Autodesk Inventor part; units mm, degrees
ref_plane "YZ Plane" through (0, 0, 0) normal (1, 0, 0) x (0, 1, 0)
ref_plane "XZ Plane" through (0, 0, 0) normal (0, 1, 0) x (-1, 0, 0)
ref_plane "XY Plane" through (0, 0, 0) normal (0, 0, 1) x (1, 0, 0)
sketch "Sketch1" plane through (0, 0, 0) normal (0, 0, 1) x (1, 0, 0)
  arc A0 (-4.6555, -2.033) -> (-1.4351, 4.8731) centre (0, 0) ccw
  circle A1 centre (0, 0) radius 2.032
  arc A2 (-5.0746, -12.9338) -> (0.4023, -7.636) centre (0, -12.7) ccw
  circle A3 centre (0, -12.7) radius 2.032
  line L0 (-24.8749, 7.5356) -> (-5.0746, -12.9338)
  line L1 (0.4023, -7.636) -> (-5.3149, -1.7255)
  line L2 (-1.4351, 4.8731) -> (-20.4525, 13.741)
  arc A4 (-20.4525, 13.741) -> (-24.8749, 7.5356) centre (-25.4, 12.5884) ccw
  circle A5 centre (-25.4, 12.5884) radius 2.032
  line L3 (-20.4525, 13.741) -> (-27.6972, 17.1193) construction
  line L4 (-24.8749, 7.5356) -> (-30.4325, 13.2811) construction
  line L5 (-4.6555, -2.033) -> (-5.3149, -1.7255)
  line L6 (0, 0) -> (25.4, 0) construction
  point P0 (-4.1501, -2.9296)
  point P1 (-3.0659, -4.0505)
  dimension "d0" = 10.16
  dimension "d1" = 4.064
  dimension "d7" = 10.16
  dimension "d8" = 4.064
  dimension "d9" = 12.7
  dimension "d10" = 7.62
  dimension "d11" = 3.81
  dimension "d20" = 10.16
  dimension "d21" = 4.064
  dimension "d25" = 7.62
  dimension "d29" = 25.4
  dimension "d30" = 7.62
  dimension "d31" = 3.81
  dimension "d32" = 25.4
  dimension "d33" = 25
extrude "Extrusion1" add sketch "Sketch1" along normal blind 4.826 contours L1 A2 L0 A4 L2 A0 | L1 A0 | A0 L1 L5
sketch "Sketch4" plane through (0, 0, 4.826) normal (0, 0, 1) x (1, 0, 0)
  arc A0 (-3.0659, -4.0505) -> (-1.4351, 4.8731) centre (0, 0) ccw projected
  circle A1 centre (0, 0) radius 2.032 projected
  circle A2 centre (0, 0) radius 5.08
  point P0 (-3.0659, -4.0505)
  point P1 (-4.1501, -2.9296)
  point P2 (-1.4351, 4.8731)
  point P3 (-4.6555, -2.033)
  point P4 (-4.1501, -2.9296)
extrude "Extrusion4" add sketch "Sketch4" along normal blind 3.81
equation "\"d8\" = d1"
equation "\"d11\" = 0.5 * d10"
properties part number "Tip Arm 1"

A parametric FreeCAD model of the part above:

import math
import FreeCAD as App
import Part
import Sketcher

V = App.Vector
Q = App.Units.Quantity

doc = App.newDocument("Part")
body = doc.addObject("PartDesign::Body", "Body")

sketch1 = doc.addObject("Sketcher::SketchObject", "Sketch")
body.addObject(sketch1)
sketch1.AttachmentSupport = (doc.XY_Plane, [""])
sketch1.MapMode = "FlatFace"
sketch1.addGeometry([
    Part.LineSegment(V(0.4, -7.6, 0), V(-3.1, -4.1, 0)),
    Part.ArcOfCircle(Part.Circle(V(0, 0, 0), V(0, 0, 1), 5.1), math.radians(-127), math.radians(106)),
    Part.LineSegment(V(-1.4, 4.9, 0), V(-20.5, 13.7, 0)),
    Part.ArcOfCircle(Part.Circle(V(-25.4, 12.6, 0), V(0, 0, 1), 5.1), math.radians(13), math.radians(276)),
    Part.LineSegment(V(-24.9, 7.5, 0), V(-5.1, -12.9, 0)),
    Part.ArcOfCircle(Part.Circle(V(0, -12.7, 0), V(0, 0, 1), 5.1), math.radians(-177), math.radians(85)),
    Part.Circle(V(0, -12.7, 0), V(0, 0, 1), 2),
    Part.Circle(V(-25.4, 12.6, 0), V(0, 0, 1), 2),
    Part.Circle(V(0, 0, 0), V(0, 0, 1), 2),
], False)
sketch1.addConstraint([
    Sketcher.Constraint("Coincident", 0, 2, 1, 1),
    Sketcher.Constraint("Coincident", 1, 2, 2, 1),
    Sketcher.Constraint("Coincident", 2, 2, 3, 1),
    Sketcher.Constraint("Coincident", 3, 2, 4, 1),
    Sketcher.Constraint("Coincident", 4, 2, 5, 1),
    Sketcher.Constraint("Coincident", 5, 2, 0, 1),
    Sketcher.Constraint("Coincident", 1, 3, -1, 1),
    Sketcher.Constraint("Coincident", 8, 3, -1, 1),
    Sketcher.Constraint("Coincident", 6, 3, 5, 3),
    Sketcher.Constraint("Coincident", 7, 3, 3, 3),
    Sketcher.Constraint("Equal", 1, 3),
    Sketcher.Constraint("Equal", 3, 5),
    Sketcher.Constraint("Equal", 6, 7),
    Sketcher.Constraint("Equal", 7, 8),
    Sketcher.Constraint("PointOnObject", 5, 3, -2),
    Sketcher.Constraint("Parallel", 0, 4),
    Sketcher.Constraint("Radius", 1, Q("0.2 in")),
    Sketcher.Constraint("Diameter", 6, Q("0.16 in")),
    Sketcher.Constraint("DistanceX", 3, 3, -1, 1, Q("1 in")),
    Sketcher.Constraint("DistanceY", 5, 3, -1, 1, Q("0.5 in")),
    Sketcher.Constraint("Angle", 2, Q("155.0001 deg")),
    Sketcher.Constraint("DistanceY", -1, 1, 3, 3, Q("0.4956 in")),
    Sketcher.Constraint("DistanceX", 0, 2, -1, 1, Q("0.1207 in")),
    Sketcher.Constraint("DistanceX", 1, 2, -1, 1, Q("0.0565 in")),
    Sketcher.Constraint("DistanceY", 4, 2, -1, 1, Q("0.5092 in")),
    Sketcher.Constraint("DistanceX", 3, 2, 2, 2, Q("0.1741 in")),
])
pad1 = doc.addObject("PartDesign::Pad", "Pad")
body.addObject(pad1)
pad1.Profile = sketch1
pad1.Length = Q("0.19 in")

sketch2 = doc.addObject("Sketcher::SketchObject", "Sketch001")
body.addObject(sketch2)
sketch2.AttachmentSupport = (doc.XY_Plane, [""])
sketch2.MapMode = "FlatFace"
sketch2.AttachmentOffset = App.Placement(V(0, 0, 0.19 * 25.4), App.Rotation())
sketch2.addGeometry([
    Part.ArcOfCircle(Part.Circle(V(0, 0, 0), V(0, 0, 1), 5.1), math.radians(106), math.radians(233)),
    Part.ArcOfCircle(Part.Circle(V(0, 0, 0), V(0, 0, 1), 5.1), math.radians(-127), math.radians(106)),
    Part.Circle(V(0, 0, 0), V(0, 0, 1), 2),
], False)
sketch2.addConstraint([
    Sketcher.Constraint("Tangent", 0, 1, 1, 2),
    Sketcher.Constraint("Coincident", 1, 1, 0, 2),
    Sketcher.Constraint("Coincident", 0, 3, -1, 1),
    Sketcher.Constraint("Coincident", 2, 3, -1, 1),
    Sketcher.Constraint("Radius", 0, Q("0.2 in")),
    Sketcher.Constraint("Diameter", 2, Q("0.16 in")),
    Sketcher.Constraint("DistanceX", 0, 1, -1, 1, Q("0.0565 in")),
    Sketcher.Constraint("DistanceX", 1, 1, -1, 1, Q("0.1207 in")),
])
pad2 = doc.addObject("PartDesign::Pad", "Pad001")
body.addObject(pad2)
pad2.Profile = sketch2
pad2.Length = Q("0.15 in")

doc.recompute()
